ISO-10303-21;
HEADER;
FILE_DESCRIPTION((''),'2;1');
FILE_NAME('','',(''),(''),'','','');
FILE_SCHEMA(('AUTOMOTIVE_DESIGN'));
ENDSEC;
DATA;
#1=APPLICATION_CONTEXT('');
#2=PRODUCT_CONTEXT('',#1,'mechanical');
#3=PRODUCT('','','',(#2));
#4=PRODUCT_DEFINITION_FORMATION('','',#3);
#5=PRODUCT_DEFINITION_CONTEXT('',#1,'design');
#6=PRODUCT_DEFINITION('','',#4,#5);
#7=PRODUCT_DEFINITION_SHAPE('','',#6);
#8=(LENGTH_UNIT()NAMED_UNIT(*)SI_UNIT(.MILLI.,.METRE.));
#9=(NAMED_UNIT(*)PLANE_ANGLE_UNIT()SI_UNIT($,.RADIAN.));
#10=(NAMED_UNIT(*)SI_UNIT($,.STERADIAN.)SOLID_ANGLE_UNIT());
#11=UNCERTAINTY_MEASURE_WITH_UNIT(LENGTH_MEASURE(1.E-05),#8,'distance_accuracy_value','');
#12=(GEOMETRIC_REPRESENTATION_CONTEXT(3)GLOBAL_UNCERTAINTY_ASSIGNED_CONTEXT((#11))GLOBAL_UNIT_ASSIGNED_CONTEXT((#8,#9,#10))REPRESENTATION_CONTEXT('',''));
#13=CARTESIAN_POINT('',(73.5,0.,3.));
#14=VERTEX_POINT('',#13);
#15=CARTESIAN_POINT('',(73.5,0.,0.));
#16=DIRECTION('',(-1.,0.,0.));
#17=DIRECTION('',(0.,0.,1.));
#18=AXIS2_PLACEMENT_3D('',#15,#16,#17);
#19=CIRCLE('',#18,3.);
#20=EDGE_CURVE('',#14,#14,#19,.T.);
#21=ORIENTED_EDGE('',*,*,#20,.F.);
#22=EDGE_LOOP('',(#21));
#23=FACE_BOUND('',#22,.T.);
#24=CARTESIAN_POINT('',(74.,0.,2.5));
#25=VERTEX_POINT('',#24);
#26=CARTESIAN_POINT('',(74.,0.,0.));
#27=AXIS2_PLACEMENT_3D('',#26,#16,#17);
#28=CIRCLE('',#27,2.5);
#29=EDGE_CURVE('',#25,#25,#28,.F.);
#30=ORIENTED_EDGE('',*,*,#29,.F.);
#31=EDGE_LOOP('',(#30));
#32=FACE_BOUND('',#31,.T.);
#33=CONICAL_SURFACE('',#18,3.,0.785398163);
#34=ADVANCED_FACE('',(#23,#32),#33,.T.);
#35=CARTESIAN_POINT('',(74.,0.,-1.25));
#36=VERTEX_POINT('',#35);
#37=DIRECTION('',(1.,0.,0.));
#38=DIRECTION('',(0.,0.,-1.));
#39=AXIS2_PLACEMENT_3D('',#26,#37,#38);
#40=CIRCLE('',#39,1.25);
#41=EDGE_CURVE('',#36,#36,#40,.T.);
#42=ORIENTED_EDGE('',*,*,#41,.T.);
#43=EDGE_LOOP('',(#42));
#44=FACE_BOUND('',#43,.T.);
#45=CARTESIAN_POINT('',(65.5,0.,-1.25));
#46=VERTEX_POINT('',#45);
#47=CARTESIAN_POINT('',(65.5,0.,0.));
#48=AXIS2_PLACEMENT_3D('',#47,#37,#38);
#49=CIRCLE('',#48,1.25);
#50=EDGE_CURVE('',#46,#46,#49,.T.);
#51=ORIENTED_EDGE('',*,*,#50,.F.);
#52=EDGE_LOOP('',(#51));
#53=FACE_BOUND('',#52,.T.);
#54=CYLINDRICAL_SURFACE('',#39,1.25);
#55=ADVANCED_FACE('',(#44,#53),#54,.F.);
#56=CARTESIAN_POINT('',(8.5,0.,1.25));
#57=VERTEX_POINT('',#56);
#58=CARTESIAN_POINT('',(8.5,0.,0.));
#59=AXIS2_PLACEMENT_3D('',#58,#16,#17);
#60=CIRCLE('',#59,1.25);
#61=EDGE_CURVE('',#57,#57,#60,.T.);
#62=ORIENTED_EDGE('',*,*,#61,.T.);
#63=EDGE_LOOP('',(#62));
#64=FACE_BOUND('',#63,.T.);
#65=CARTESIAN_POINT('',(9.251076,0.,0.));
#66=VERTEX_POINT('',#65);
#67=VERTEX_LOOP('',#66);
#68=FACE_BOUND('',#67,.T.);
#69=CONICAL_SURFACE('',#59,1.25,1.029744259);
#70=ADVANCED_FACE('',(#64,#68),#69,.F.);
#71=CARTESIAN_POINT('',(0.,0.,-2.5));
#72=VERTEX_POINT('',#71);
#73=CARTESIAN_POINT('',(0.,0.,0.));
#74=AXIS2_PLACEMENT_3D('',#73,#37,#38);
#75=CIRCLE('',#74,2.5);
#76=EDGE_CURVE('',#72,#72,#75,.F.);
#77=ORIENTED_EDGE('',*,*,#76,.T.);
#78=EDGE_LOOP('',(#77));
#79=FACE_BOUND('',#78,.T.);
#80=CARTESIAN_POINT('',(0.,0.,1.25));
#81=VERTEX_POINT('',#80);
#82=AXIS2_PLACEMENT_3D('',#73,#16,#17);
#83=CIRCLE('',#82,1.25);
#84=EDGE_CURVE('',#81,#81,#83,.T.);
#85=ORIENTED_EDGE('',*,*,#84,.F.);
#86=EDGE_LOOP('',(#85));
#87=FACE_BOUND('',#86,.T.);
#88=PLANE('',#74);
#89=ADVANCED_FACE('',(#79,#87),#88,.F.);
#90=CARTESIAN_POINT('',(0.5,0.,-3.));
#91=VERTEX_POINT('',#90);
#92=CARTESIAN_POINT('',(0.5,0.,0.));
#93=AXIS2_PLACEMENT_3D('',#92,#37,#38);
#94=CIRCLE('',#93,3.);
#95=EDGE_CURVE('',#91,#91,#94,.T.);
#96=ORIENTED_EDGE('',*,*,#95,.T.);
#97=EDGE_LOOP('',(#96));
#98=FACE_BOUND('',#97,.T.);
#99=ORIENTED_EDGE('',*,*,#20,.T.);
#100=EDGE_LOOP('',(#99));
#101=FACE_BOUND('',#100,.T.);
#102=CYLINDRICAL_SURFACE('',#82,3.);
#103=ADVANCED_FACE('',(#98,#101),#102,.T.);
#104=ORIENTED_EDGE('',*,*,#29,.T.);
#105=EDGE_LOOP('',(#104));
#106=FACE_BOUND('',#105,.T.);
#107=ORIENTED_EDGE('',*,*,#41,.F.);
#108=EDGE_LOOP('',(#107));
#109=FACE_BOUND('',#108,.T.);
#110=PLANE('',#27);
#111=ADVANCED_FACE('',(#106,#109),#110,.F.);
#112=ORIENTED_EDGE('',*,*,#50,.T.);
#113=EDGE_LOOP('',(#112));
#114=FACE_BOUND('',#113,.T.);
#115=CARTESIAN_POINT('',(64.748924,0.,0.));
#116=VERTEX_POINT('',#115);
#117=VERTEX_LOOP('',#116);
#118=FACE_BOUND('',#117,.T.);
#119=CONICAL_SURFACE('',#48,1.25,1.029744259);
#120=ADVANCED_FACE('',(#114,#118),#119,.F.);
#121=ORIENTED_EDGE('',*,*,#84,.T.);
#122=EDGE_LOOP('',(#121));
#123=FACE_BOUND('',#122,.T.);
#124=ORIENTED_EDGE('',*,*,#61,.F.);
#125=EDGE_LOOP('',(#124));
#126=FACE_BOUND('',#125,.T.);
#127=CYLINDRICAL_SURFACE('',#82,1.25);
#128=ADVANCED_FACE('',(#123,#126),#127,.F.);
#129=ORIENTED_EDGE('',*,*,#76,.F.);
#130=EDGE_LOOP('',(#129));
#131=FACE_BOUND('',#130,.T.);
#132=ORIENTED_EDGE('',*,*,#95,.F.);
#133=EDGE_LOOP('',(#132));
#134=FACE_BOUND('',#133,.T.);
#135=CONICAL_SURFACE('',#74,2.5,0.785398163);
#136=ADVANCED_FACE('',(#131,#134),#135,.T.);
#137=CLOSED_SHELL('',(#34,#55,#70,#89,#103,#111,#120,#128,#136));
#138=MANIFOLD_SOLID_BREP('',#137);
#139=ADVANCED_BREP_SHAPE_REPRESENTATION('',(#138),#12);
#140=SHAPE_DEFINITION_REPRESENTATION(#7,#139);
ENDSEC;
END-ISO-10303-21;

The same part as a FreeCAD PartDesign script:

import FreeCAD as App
import Part
import Sketcher
from FreeCAD import Vector


def edges_at(feature, points):
    """Names of the edges that pass closest to the given points."""
    edges = feature.Shape.Edges
    near = lambda p: min(range(len(edges)), key=lambda i: edges[i].distToShape(Part.Vertex(*p))[0])
    return sorted({f"Edge{near(p) + 1}" for p in points})


def add_polygon(sketch, points):
    """Adds a closed chain of lines whose ends are joined by coincident constraints."""
    first, n = sketch.GeometryCount, len(points)
    for a, b in zip(points, points[1:] + points[:1]):
        sketch.addGeometry(Part.LineSegment(App.Vector(*a, 0), App.Vector(*b, 0)), False)
    for i in range(n):
        sketch.addConstraint(Sketcher.Constraint("Coincident", first + i, 2, first + (i + 1) % n, 1))

doc = App.newDocument("Part")
params = doc.addObject("Spreadsheet::Sheet", "Params")
for row, (alias, value) in enumerate([
    ("sketch1_width", "74 mm"),
    ("sketch1_height", "3 mm"),
    ("revolution_angle", "360 deg"),
    ("sketch2_diameter", "2.5 mm"),
    ("hole_diameter", "2.5 mm"),
    ("hole_depth", "8.5 mm"),
    ("sketch3_diameter", "2.5 mm"),
    ("hole2_diameter", "2.5 mm"),
    ("hole2_depth", "8.5 mm"),
    ("chamfer_size", "0.5 mm"),
], start=1):
    params.set(f"A{row}", alias)
    params.set(f"B{row}", "=" + value)
    params.setAlias(f"B{row}", alias)

body = doc.addObject("PartDesign::Body", "Body")

# Sketch on XY plane
sketch1 = doc.addObject("Sketcher::SketchObject", "Sketch")
body.addObject(sketch1)
sketch1.AttachmentSupport = (doc.XY_Plane, [""])
sketch1.MapMode = "FlatFace"
add_polygon(sketch1, [(0, 3), (0, 0), (74, 0), (74, 3)])  # lines 0-3
sketch1.addConstraint([
    Sketcher.Constraint("Vertical", 0),
    Sketcher.Constraint("Horizontal", 1),
    Sketcher.Constraint("Vertical", 2),
    Sketcher.Constraint("Horizontal", 3),
    Sketcher.Constraint("Coincident", 0, 2, -1, 1),
    Sketcher.Constraint("DistanceX", 1, 1, 1, 2, 74.0),
    Sketcher.Constraint("DistanceY", 0, 2, 0, 1, 3.0),
])
sketch1.setExpression("Constraints[9]", "Params.sketch1_width")
sketch1.setExpression("Constraints[10]", "Params.sketch1_height")
revolution = doc.addObject("PartDesign::Revolution", "Revolution")
body.addObject(revolution)
revolution.Profile = sketch1
revolution.ReferenceAxis = (sketch1, ["H_Axis"])
revolution.setExpression("Angle", "Params.revolution_angle")

# Sketch on YZ plane
sketch2 = doc.addObject("Sketcher::SketchObject", "Sketch001")
body.addObject(sketch2)
sketch2.AttachmentSupport = (doc.YZ_Plane, [""])
sketch2.MapMode = "FlatFace"
sketch2.addGeometry(Part.Circle(Vector(0, 0, 0), Vector(0, 0, 1), 1.2), False)
sketch2.addConstraint([
    Sketcher.Constraint("Coincident", 0, 3, -1, 1),
    Sketcher.Constraint("Diameter", 0, 2.5),
])
sketch2.setExpression("Constraints[1]", "Params.sketch2_diameter")
doc.recompute()
hole = doc.addObject("PartDesign::Hole", "Hole")
body.addObject(hole)
hole.Profile = sketch2
hole.ThreadType = "None"
hole.setExpression("Diameter", "Params.hole_diameter")
hole.DepthType = "Dimension"
hole.setExpression("Depth", "Params.hole_depth")
hole.DrillPoint = "Angled"
hole.DrillPointAngle = 118
hole.Reversed = True

# Sketch on YZ plane
sketch3 = doc.addObject("Sketcher::SketchObject", "Sketch002")
body.addObject(sketch3)
sketch3.AttachmentSupport = (doc.YZ_Plane, [""])
sketch3.MapMode = "FlatFace"
sketch3.AttachmentOffset = App.Placement(Vector(0, 0, 74), App.Rotation())
sketch3.addGeometry(Part.Circle(Vector(0, 0, 0), Vector(0, 0, 1), 1.2), False)
sketch3.addConstraint([
    Sketcher.Constraint("Coincident", 0, 3, -1, 1),
    Sketcher.Constraint("Diameter", 0, 2.5),
])
sketch3.setExpression("Constraints[1]", "Params.sketch3_diameter")
doc.recompute()
hole2 = doc.addObject("PartDesign::Hole", "Hole001")
body.addObject(hole2)
hole2.Profile = sketch3
hole2.ThreadType = "None"
hole2.setExpression("Diameter", "Params.hole2_diameter")
hole2.DepthType = "Dimension"
hole2.setExpression("Depth", "Params.hole2_depth")
hole2.DrillPoint = "Angled"
hole2.DrillPointAngle = 118
doc.recompute()

chamfer = doc.addObject("PartDesign::Chamfer", "Chamfer")
body.addObject(chamfer)
chamfer.Base = (hole2, edges_at(hole2, [(74, 0, -3), (0, 0, -3)]))
chamfer.setExpression("Size", "Params.chamfer_size")

doc.recompute()
